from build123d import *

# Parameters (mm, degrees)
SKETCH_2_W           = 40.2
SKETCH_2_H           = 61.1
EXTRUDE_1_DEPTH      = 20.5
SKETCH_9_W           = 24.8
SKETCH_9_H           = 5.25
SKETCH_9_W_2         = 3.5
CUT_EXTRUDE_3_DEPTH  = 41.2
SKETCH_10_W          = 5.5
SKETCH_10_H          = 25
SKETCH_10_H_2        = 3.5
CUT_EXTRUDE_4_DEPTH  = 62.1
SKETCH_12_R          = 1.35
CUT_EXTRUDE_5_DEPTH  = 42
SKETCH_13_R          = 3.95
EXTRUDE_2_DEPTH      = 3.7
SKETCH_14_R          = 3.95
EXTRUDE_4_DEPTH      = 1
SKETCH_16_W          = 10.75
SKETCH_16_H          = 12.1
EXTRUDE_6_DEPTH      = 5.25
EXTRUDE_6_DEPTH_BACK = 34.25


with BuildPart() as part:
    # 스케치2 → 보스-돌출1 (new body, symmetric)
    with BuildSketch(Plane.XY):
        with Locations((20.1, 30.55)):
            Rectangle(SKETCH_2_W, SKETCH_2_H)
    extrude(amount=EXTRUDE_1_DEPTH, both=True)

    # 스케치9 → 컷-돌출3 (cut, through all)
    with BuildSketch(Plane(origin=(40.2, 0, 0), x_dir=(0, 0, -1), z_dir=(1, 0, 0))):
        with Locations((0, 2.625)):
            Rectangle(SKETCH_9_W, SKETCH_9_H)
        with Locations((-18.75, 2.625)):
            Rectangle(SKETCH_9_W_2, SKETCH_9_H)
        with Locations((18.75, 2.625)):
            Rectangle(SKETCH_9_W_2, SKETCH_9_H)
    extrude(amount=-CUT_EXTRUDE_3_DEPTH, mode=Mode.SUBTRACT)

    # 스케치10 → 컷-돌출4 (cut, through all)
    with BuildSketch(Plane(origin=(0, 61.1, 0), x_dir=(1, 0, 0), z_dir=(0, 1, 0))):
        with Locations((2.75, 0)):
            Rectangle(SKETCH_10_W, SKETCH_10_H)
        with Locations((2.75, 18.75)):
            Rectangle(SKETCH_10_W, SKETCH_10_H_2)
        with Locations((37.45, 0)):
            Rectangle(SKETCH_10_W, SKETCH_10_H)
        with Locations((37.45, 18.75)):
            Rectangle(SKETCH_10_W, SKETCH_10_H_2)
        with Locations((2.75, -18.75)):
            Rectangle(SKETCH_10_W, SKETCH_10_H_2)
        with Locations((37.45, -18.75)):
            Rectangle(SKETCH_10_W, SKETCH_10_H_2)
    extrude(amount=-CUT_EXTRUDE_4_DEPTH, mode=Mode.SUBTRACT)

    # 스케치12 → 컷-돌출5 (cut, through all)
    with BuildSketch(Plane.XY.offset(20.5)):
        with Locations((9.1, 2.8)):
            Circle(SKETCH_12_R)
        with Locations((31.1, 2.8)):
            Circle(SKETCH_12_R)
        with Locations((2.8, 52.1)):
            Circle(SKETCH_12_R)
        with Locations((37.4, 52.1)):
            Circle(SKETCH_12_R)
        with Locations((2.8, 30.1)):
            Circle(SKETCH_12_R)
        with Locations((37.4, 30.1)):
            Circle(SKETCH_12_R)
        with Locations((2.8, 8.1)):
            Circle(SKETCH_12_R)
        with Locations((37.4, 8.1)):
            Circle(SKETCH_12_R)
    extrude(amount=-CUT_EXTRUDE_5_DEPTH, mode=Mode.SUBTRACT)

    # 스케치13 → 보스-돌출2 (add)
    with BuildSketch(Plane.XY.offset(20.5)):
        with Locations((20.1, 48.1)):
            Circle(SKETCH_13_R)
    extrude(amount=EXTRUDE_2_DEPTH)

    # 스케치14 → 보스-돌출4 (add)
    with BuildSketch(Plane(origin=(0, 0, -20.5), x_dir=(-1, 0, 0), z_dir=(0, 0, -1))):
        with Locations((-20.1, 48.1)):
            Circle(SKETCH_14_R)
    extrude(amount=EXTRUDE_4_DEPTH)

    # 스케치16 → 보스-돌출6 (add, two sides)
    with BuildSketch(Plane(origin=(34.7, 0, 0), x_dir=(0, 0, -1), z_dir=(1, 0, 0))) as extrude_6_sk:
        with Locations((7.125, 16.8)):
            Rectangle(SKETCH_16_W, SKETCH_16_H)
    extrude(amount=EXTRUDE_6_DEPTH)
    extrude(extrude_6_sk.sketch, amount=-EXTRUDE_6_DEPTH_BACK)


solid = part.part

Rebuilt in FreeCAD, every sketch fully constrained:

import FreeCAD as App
import Part
import Sketcher

V = App.Vector


def add_polygon(sketch, points):
    """Adds a closed chain of lines whose ends are joined by coincident constraints."""
    first, n = sketch.GeometryCount, len(points)
    for a, b in zip(points, points[1:] + points[:1]):
        sketch.addGeometry(Part.LineSegment(App.Vector(*a, 0), App.Vector(*b, 0)), False)
    for i in range(n):
        sketch.addConstraint(Sketcher.Constraint("Coincident", first + i, 2, first + (i + 1) % n, 1))

doc = App.newDocument("Part")
body = doc.addObject("PartDesign::Body", "Body")

# Sketch on XY plane
sketch1 = body.newObject("Sketcher::SketchObject", "Sketch")
sketch1.AttachmentSupport = (doc.getObject("XY_Plane"), [""])
sketch1.MapMode = "FlatFace"
add_polygon(sketch1, [(0, 61), (0, 0), (40, 0), (40, 61)])  # lines 0-3
sketch1.addConstraint(Sketcher.Constraint("Vertical", 0))
sketch1.addConstraint(Sketcher.Constraint("Horizontal", 1))
sketch1.addConstraint(Sketcher.Constraint("Vertical", 2))
sketch1.addConstraint(Sketcher.Constraint("Horizontal", 3))
sketch1.addConstraint(Sketcher.Constraint("Coincident", 0, 2, -1, 1))
sketch1.addConstraint(Sketcher.Constraint("DistanceX", 1, 1, 1, 2, 40.2))
sketch1.addConstraint(Sketcher.Constraint("DistanceY", 0, 2, 0, 1, 61.1))
pad1 = body.newObject("PartDesign::Pad", "Pad")
pad1.Profile = sketch1
pad1.Length = 41
pad1.Midplane = True

# Sketch on YZ plane
sketch2 = body.newObject("Sketcher::SketchObject", "Sketch001")
sketch2.AttachmentSupport = (doc.getObject("YZ_Plane"), [""])
sketch2.MapMode = "FlatFace"
sketch2.AttachmentOffset = App.Placement(V(0, 0, 40.2), App.Rotation())
add_polygon(sketch2, [(5.2, 12.4), (0, 12.4), (0, -12.4), (5.2, -12.4)])  # lines 0-3
add_polygon(sketch2, [(5.2, 20.5), (0, 20.5), (0, 17), (5.2, 17)])  # lines 4-7
add_polygon(sketch2, [(5.2, -17), (0, -17), (0, -20.5), (5.2, -20.5)])  # lines 8-11
sketch2.addConstraint(Sketcher.Constraint("Horizontal", 0))
sketch2.addConstraint(Sketcher.Constraint("Vertical", 1))
sketch2.addConstraint(Sketcher.Constraint("Horizontal", 2))
sketch2.addConstraint(Sketcher.Constraint("Vertical", 3))
sketch2.addConstraint(Sketcher.Constraint("Horizontal", 4))
sketch2.addConstraint(Sketcher.Constraint("Vertical", 5))
sketch2.addConstraint(Sketcher.Constraint("Horizontal", 6))
sketch2.addConstraint(Sketcher.Constraint("Vertical", 7))
sketch2.addConstraint(Sketcher.Constraint("Horizontal", 8))
sketch2.addConstraint(Sketcher.Constraint("Vertical", 9))
sketch2.addConstraint(Sketcher.Constraint("Horizontal", 10))
sketch2.addConstraint(Sketcher.Constraint("Vertical", 11))
sketch2.addConstraint(Sketcher.Constraint("Symmetric", 0, 2, 1, 2, -1, 1))
sketch2.addConstraint(Sketcher.Constraint("Symmetric", 5, 2, 8, 2, -1, 1))
sketch2.addConstraint(Sketcher.Constraint("Symmetric", 4, 2, 9, 2, -1))
sketch2.addConstraint(Sketcher.Constraint("Vertical", 3, 2, 6, 2))
sketch2.addConstraint(Sketcher.Constraint("Vertical", 7, 2, 10, 2))
sketch2.addConstraint(Sketcher.Constraint("DistanceY", 1, 2, 1, 1, 24.8))
sketch2.addConstraint(Sketcher.Constraint("DistanceY", 5, 2, 5, 1, 3.5))
sketch2.addConstraint(Sketcher.Constraint("DistanceY", -1, 1, 5, 2, 17.0))
sketch2.addConstraint(Sketcher.Constraint("DistanceX", 0, 2, 0, 1, 5.25))
pocket1 = body.newObject("PartDesign::Pocket", "Pocket")
pocket1.Profile = sketch2
pocket1.Type = "ThroughAll"

# Sketch on XZ plane
sketch3 = body.newObject("Sketcher::SketchObject", "Sketch002")
sketch3.AttachmentSupport = (doc.getObject("XZ_Plane"), [""])
sketch3.MapMode = "FlatFace"
sketch3.AttachmentOffset = App.Placement(V(0, 0, -61.1), App.Rotation())
add_polygon(sketch3, [(0, -12.5), (0, 12.5), (5.5, 12.5), (5.5, -12.5)])  # lines 0-3
add_polygon(sketch3, [(0, -20.5), (0, -17), (5.5, -17), (5.5, -20.5)])  # lines 4-7
add_polygon(sketch3, [(34.7, -12.5), (34.7, 12.5), (40.2, 12.5), (40.2, -12.5)])  # lines 8-11
add_polygon(sketch3, [(34.7, -20.5), (34.7, -17), (40.2, -17), (40.2, -20.5)])  # lines 12-15
add_polygon(sketch3, [(0, 17), (0, 20.5), (5.5, 20.5), (5.5, 17)])  # lines 16-19
add_polygon(sketch3, [(34.7, 17), (34.7, 20.5), (40.2, 20.5), (40.2, 17)])  # lines 20-23
sketch3.addConstraint(Sketcher.Constraint("Vertical", 0))
sketch3.addConstraint(Sketcher.Constraint("Horizontal", 1))
sketch3.addConstraint(Sketcher.Constraint("Vertical", 2))
sketch3.addConstraint(Sketcher.Constraint("Horizontal", 3))
sketch3.addConstraint(Sketcher.Constraint("Vertical", 4))
sketch3.addConstraint(Sketcher.Constraint("Horizontal", 5))
sketch3.addConstraint(Sketcher.Constraint("Vertical", 6))
sketch3.addConstraint(Sketcher.Constraint("Horizontal", 7))
sketch3.addConstraint(Sketcher.Constraint("Vertical", 8))
sketch3.addConstraint(Sketcher.Constraint("Horizontal", 9))
sketch3.addConstraint(Sketcher.Constraint("Vertical", 10))
sketch3.addConstraint(Sketcher.Constraint("Horizontal", 11))
sketch3.addConstraint(Sketcher.Constraint("Vertical", 12))
sketch3.addConstraint(Sketcher.Constraint("Horizontal", 13))
sketch3.addConstraint(Sketcher.Constraint("Vertical", 14))
sketch3.addConstraint(Sketcher.Constraint("Horizontal", 15))
sketch3.addConstraint(Sketcher.Constraint("Vertical", 16))
sketch3.addConstraint(Sketcher.Constraint("Horizontal", 17))
sketch3.addConstraint(Sketcher.Constraint("Vertical", 18))
sketch3.addConstraint(Sketcher.Constraint("Horizontal", 19))
sketch3.addConstraint(Sketcher.Constraint("Vertical", 20))
sketch3.addConstraint(Sketcher.Constraint("Horizontal", 21))
sketch3.addConstraint(Sketcher.Constraint("Vertical", 22))
sketch3.addConstraint(Sketcher.Constraint("Horizontal", 23))
sketch3.addConstraint(Sketcher.Constraint("Symmetric", 0, 2, 3, 2, -1, 1))
sketch3.addConstraint(Sketcher.Constraint("Symmetric", 7, 2, 16, 2, -1, 1))
sketch3.addConstraint(Sketcher.Constraint("Symmetric", 5, 2, 18, 2, -1))
sketch3.addConstraint(Sketcher.Constraint("Symmetric", 15, 2, 20, 2, -1))
sketch3.addConstraint(Sketcher.Constraint("Symmetric", 13, 2, 22, 2, -1))
sketch3.addConstraint(Sketcher.Constraint("PointOnObject", 4, 2, -2))
sketch3.addConstraint(Sketcher.Constraint("Horizontal", 1, 2, 8, 2))
sketch3.addConstraint(Sketcher.Constraint("Horizontal", 3, 2, 10, 2))
sketch3.addConstraint(Sketcher.Constraint("Horizontal", 5, 2, 12, 2))
sketch3.addConstraint(Sketcher.Constraint("Horizontal", 7, 2, 14, 2))
sketch3.addConstraint(Sketcher.Constraint("Vertical", 2, 2, 5, 2))
sketch3.addConstraint(Sketcher.Constraint("Vertical", 11, 2, 12, 2))
sketch3.addConstraint(Sketcher.Constraint("Vertical", 10, 2, 13, 2))
sketch3.addConstraint(Sketcher.Constraint("Equal", 7, 9))
sketch3.addConstraint(Sketcher.Constraint("DistanceY", 0, 1, 0, 2, 25.0))
sketch3.addConstraint(Sketcher.Constraint("DistanceX", 1, 1, 1, 2, 5.5))
sketch3.addConstraint(Sketcher.Constraint("DistanceY", 4, 1, 4, 2, 3.5))
sketch3.addConstraint(Sketcher.Constraint("DistanceY", 4, 2, -1, 1, 17.0))
sketch3.addConstraint(Sketcher.Constraint("DistanceX", -1, 1, 8, 2, 34.7))
pocket2 = body.newObject("PartDesign::Pocket", "Pocket001")
pocket2.Profile = sketch3
pocket2.Type = "ThroughAll"
pocket2.Reversed = True

# Sketch on XY plane
sketch4 = body.newObject("Sketcher::SketchObject", "Sketch003")
sketch4.AttachmentSupport = (doc.getObject("XY_Plane"), [""])
sketch4.MapMode = "FlatFace"
sketch4.AttachmentOffset = App.Placement(V(0, 0, 20.5), App.Rotation())
sketch4.addGeometry(Part.Circle(V(9.1, 2.8, 0), V(0, 0, 1), 1.4), False)
sketch4.addGeometry(Part.Circle(V(31.1, 2.8, 0), V(0, 0, 1), 1.4), False)
sketch4.addGeometry(Part.Circle(V(2.8, 52.1, 0), V(0, 0, 1), 1.4), False)
sketch4.addGeometry(Part.Circle(V(37.4, 52.1, 0), V(0, 0, 1), 1.4), False)
sketch4.addGeometry(Part.Circle(V(2.8, 30.1, 0), V(0, 0, 1), 1.4), False)
sketch4.addGeometry(Part.Circle(V(37.4, 30.1, 0), V(0, 0, 1), 1.4), False)
sketch4.addGeometry(Part.Circle(V(2.8, 8.1, 0), V(0, 0, 1), 1.4), False)
sketch4.addGeometry(Part.Circle(V(37.4, 8.1, 0), V(0, 0, 1), 1.4), False)
sketch4.addConstraint(Sketcher.Constraint("Equal", 0, 1))
sketch4.addConstraint(Sketcher.Constraint("Equal", 1, 2))
sketch4.addConstraint(Sketcher.Constraint("Equal", 2, 3))
sketch4.addConstraint(Sketcher.Constraint("Equal", 3, 4))
sketch4.addConstraint(Sketcher.Constraint("Equal", 4, 5))
sketch4.addConstraint(Sketcher.Constraint("Equal", 5, 6))
sketch4.addConstraint(Sketcher.Constraint("Equal", 6, 7))
sketch4.addConstraint(Sketcher.Constraint("Horizontal", 0, 3, 1, 3))
sketch4.addConstraint(Sketcher.Constraint("Horizontal", 2, 3, 3, 3))
sketch4.addConstraint(Sketcher.Constraint("Horizontal", 4, 3, 5, 3))
sketch4.addConstraint(Sketcher.Constraint("Horizontal", 6, 3, 7, 3))
sketch4.addConstraint(Sketcher.Constraint("Vertical", 2, 3, 4, 3))
sketch4.addConstraint(Sketcher.Constraint("Vertical", 3, 3, 5, 3))
sketch4.addConstraint(Sketcher.Constraint("Vertical", 4, 3, 6, 3))
sketch4.addConstraint(Sketcher.Constraint("Vertical", 5, 3, 7, 3))
sketch4.addConstraint(Sketcher.Constraint("Diameter", 0, 2.7))
sketch4.addConstraint(Sketcher.Constraint("DistanceX", 0, 3, 1, 3, 22.0))
sketch4.addConstraint(Sketcher.Constraint("DistanceY", 4, 3, 2, 3, 22.0))
sketch4.addConstraint(Sketcher.Constraint("DistanceY", 6, 3, 4, 3, 22.0))
sketch4.addConstraint(Sketcher.Constraint("DistanceX", -1, 1, 0, 3, 9.1))
sketch4.addConstraint(Sketcher.Constraint("DistanceY", -1, 1, 0, 3, 2.8))
sketch4.addConstraint(Sketcher.Constraint("DistanceX", -1, 1, 2, 3, 2.8))
sketch4.addConstraint(Sketcher.Constraint("DistanceY", -1, 1, 2, 3, 52.1))
sketch4.addConstraint(Sketcher.Constraint("DistanceX", -1, 1, 3, 3, 37.4))
pocket3 = body.newObject("PartDesign::Pocket", "Pocket002")
pocket3.Profile = sketch4
pocket3.Type = "ThroughAll"

# Sketch on XY plane
sketch5 = body.newObject("Sketcher::SketchObject", "Sketch004")
sketch5.AttachmentSupport = (doc.getObject("XY_Plane"), [""])
sketch5.MapMode = "FlatFace"
sketch5.AttachmentOffset = App.Placement(V(0, 0, 20.5), App.Rotation())
sketch5.addGeometry(Part.Circle(V(20.1, 48.1, 0), V(0, 0, 1), 4), False)
sketch5.addConstraint(Sketcher.Constraint("Diameter", 0, 7.9))
sketch5.addConstraint(Sketcher.Constraint("DistanceX", -1, 1, 0, 3, 20.1))
sketch5.addConstraint(Sketcher.Constraint("DistanceY", -1, 1, 0, 3, 48.1))
pad2 = body.newObject("PartDesign::Pad", "Pad001")
pad2.Profile = sketch5
pad2.Length = 3.7

# Sketch on XY plane
sketch6 = body.newObject("Sketcher::SketchObject", "Sketch005")
sketch6.AttachmentSupport = (doc.getObject("XY_Plane"), [""])
sketch6.MapMode = "FlatFace"
sketch6.AttachmentOffset = App.Placement(V(0, 0, -20.5), App.Rotation())
sketch6.addGeometry(Part.Circle(V(20.1, 48.1, 0), V(0, 0, 1), 4), False)
sketch6.addConstraint(Sketcher.Constraint("Diameter", 0, 7.9))
sketch6.addConstraint(Sketcher.Constraint("DistanceX", -1, 1, 0, 3, 20.1))
sketch6.addConstraint(Sketcher.Constraint("DistanceY", -1, 1, 0, 3, 48.1))
pad3 = body.newObject("PartDesign::Pad", "Pad002")
pad3.Profile = sketch6
pad3.Length = 1
pad3.Reversed = True

# Sketch on YZ plane
sketch7 = body.newObject("Sketcher::SketchObject", "Sketch006")
sketch7.AttachmentSupport = (doc.getObject("YZ_Plane"), [""])
sketch7.MapMode = "FlatFace"
sketch7.AttachmentOffset = App.Placement(V(0, 0, 34.7), App.Rotation())
add_polygon(sketch7, [(23, -2), (11, -2), (11, -12), (23, -12)])  # lines 0-3
sketch7.addConstraint(Sketcher.Constraint("Horizontal", 0))
sketch7.addConstraint(Sketcher.Constraint("Vertical", 1))
sketch7.addConstraint(Sketcher.Constraint("Horizontal", 2))
sketch7.addConstraint(Sketcher.Constraint("Vertical", 3))
sketch7.addConstraint(Sketcher.Constraint("DistanceX", 0, 2, 0, 1, 12.1))
sketch7.addConstraint(Sketcher.Constraint("DistanceY", 1, 2, 1, 1, 10.75))
sketch7.addConstraint(Sketcher.Constraint("DistanceY", 1, 2, -1, 1, 12.5))
sketch7.addConstraint(Sketcher.Constraint("DistanceX", -1, 1, 0, 2, 10.75))
pad4 = body.newObject("PartDesign::Pad", "Pad003")
pad4.Profile = sketch7
pad4.Type = "TwoLengths"
pad4.Length = 5.25
pad4.Length2 = 34.25

doc.recompute()
